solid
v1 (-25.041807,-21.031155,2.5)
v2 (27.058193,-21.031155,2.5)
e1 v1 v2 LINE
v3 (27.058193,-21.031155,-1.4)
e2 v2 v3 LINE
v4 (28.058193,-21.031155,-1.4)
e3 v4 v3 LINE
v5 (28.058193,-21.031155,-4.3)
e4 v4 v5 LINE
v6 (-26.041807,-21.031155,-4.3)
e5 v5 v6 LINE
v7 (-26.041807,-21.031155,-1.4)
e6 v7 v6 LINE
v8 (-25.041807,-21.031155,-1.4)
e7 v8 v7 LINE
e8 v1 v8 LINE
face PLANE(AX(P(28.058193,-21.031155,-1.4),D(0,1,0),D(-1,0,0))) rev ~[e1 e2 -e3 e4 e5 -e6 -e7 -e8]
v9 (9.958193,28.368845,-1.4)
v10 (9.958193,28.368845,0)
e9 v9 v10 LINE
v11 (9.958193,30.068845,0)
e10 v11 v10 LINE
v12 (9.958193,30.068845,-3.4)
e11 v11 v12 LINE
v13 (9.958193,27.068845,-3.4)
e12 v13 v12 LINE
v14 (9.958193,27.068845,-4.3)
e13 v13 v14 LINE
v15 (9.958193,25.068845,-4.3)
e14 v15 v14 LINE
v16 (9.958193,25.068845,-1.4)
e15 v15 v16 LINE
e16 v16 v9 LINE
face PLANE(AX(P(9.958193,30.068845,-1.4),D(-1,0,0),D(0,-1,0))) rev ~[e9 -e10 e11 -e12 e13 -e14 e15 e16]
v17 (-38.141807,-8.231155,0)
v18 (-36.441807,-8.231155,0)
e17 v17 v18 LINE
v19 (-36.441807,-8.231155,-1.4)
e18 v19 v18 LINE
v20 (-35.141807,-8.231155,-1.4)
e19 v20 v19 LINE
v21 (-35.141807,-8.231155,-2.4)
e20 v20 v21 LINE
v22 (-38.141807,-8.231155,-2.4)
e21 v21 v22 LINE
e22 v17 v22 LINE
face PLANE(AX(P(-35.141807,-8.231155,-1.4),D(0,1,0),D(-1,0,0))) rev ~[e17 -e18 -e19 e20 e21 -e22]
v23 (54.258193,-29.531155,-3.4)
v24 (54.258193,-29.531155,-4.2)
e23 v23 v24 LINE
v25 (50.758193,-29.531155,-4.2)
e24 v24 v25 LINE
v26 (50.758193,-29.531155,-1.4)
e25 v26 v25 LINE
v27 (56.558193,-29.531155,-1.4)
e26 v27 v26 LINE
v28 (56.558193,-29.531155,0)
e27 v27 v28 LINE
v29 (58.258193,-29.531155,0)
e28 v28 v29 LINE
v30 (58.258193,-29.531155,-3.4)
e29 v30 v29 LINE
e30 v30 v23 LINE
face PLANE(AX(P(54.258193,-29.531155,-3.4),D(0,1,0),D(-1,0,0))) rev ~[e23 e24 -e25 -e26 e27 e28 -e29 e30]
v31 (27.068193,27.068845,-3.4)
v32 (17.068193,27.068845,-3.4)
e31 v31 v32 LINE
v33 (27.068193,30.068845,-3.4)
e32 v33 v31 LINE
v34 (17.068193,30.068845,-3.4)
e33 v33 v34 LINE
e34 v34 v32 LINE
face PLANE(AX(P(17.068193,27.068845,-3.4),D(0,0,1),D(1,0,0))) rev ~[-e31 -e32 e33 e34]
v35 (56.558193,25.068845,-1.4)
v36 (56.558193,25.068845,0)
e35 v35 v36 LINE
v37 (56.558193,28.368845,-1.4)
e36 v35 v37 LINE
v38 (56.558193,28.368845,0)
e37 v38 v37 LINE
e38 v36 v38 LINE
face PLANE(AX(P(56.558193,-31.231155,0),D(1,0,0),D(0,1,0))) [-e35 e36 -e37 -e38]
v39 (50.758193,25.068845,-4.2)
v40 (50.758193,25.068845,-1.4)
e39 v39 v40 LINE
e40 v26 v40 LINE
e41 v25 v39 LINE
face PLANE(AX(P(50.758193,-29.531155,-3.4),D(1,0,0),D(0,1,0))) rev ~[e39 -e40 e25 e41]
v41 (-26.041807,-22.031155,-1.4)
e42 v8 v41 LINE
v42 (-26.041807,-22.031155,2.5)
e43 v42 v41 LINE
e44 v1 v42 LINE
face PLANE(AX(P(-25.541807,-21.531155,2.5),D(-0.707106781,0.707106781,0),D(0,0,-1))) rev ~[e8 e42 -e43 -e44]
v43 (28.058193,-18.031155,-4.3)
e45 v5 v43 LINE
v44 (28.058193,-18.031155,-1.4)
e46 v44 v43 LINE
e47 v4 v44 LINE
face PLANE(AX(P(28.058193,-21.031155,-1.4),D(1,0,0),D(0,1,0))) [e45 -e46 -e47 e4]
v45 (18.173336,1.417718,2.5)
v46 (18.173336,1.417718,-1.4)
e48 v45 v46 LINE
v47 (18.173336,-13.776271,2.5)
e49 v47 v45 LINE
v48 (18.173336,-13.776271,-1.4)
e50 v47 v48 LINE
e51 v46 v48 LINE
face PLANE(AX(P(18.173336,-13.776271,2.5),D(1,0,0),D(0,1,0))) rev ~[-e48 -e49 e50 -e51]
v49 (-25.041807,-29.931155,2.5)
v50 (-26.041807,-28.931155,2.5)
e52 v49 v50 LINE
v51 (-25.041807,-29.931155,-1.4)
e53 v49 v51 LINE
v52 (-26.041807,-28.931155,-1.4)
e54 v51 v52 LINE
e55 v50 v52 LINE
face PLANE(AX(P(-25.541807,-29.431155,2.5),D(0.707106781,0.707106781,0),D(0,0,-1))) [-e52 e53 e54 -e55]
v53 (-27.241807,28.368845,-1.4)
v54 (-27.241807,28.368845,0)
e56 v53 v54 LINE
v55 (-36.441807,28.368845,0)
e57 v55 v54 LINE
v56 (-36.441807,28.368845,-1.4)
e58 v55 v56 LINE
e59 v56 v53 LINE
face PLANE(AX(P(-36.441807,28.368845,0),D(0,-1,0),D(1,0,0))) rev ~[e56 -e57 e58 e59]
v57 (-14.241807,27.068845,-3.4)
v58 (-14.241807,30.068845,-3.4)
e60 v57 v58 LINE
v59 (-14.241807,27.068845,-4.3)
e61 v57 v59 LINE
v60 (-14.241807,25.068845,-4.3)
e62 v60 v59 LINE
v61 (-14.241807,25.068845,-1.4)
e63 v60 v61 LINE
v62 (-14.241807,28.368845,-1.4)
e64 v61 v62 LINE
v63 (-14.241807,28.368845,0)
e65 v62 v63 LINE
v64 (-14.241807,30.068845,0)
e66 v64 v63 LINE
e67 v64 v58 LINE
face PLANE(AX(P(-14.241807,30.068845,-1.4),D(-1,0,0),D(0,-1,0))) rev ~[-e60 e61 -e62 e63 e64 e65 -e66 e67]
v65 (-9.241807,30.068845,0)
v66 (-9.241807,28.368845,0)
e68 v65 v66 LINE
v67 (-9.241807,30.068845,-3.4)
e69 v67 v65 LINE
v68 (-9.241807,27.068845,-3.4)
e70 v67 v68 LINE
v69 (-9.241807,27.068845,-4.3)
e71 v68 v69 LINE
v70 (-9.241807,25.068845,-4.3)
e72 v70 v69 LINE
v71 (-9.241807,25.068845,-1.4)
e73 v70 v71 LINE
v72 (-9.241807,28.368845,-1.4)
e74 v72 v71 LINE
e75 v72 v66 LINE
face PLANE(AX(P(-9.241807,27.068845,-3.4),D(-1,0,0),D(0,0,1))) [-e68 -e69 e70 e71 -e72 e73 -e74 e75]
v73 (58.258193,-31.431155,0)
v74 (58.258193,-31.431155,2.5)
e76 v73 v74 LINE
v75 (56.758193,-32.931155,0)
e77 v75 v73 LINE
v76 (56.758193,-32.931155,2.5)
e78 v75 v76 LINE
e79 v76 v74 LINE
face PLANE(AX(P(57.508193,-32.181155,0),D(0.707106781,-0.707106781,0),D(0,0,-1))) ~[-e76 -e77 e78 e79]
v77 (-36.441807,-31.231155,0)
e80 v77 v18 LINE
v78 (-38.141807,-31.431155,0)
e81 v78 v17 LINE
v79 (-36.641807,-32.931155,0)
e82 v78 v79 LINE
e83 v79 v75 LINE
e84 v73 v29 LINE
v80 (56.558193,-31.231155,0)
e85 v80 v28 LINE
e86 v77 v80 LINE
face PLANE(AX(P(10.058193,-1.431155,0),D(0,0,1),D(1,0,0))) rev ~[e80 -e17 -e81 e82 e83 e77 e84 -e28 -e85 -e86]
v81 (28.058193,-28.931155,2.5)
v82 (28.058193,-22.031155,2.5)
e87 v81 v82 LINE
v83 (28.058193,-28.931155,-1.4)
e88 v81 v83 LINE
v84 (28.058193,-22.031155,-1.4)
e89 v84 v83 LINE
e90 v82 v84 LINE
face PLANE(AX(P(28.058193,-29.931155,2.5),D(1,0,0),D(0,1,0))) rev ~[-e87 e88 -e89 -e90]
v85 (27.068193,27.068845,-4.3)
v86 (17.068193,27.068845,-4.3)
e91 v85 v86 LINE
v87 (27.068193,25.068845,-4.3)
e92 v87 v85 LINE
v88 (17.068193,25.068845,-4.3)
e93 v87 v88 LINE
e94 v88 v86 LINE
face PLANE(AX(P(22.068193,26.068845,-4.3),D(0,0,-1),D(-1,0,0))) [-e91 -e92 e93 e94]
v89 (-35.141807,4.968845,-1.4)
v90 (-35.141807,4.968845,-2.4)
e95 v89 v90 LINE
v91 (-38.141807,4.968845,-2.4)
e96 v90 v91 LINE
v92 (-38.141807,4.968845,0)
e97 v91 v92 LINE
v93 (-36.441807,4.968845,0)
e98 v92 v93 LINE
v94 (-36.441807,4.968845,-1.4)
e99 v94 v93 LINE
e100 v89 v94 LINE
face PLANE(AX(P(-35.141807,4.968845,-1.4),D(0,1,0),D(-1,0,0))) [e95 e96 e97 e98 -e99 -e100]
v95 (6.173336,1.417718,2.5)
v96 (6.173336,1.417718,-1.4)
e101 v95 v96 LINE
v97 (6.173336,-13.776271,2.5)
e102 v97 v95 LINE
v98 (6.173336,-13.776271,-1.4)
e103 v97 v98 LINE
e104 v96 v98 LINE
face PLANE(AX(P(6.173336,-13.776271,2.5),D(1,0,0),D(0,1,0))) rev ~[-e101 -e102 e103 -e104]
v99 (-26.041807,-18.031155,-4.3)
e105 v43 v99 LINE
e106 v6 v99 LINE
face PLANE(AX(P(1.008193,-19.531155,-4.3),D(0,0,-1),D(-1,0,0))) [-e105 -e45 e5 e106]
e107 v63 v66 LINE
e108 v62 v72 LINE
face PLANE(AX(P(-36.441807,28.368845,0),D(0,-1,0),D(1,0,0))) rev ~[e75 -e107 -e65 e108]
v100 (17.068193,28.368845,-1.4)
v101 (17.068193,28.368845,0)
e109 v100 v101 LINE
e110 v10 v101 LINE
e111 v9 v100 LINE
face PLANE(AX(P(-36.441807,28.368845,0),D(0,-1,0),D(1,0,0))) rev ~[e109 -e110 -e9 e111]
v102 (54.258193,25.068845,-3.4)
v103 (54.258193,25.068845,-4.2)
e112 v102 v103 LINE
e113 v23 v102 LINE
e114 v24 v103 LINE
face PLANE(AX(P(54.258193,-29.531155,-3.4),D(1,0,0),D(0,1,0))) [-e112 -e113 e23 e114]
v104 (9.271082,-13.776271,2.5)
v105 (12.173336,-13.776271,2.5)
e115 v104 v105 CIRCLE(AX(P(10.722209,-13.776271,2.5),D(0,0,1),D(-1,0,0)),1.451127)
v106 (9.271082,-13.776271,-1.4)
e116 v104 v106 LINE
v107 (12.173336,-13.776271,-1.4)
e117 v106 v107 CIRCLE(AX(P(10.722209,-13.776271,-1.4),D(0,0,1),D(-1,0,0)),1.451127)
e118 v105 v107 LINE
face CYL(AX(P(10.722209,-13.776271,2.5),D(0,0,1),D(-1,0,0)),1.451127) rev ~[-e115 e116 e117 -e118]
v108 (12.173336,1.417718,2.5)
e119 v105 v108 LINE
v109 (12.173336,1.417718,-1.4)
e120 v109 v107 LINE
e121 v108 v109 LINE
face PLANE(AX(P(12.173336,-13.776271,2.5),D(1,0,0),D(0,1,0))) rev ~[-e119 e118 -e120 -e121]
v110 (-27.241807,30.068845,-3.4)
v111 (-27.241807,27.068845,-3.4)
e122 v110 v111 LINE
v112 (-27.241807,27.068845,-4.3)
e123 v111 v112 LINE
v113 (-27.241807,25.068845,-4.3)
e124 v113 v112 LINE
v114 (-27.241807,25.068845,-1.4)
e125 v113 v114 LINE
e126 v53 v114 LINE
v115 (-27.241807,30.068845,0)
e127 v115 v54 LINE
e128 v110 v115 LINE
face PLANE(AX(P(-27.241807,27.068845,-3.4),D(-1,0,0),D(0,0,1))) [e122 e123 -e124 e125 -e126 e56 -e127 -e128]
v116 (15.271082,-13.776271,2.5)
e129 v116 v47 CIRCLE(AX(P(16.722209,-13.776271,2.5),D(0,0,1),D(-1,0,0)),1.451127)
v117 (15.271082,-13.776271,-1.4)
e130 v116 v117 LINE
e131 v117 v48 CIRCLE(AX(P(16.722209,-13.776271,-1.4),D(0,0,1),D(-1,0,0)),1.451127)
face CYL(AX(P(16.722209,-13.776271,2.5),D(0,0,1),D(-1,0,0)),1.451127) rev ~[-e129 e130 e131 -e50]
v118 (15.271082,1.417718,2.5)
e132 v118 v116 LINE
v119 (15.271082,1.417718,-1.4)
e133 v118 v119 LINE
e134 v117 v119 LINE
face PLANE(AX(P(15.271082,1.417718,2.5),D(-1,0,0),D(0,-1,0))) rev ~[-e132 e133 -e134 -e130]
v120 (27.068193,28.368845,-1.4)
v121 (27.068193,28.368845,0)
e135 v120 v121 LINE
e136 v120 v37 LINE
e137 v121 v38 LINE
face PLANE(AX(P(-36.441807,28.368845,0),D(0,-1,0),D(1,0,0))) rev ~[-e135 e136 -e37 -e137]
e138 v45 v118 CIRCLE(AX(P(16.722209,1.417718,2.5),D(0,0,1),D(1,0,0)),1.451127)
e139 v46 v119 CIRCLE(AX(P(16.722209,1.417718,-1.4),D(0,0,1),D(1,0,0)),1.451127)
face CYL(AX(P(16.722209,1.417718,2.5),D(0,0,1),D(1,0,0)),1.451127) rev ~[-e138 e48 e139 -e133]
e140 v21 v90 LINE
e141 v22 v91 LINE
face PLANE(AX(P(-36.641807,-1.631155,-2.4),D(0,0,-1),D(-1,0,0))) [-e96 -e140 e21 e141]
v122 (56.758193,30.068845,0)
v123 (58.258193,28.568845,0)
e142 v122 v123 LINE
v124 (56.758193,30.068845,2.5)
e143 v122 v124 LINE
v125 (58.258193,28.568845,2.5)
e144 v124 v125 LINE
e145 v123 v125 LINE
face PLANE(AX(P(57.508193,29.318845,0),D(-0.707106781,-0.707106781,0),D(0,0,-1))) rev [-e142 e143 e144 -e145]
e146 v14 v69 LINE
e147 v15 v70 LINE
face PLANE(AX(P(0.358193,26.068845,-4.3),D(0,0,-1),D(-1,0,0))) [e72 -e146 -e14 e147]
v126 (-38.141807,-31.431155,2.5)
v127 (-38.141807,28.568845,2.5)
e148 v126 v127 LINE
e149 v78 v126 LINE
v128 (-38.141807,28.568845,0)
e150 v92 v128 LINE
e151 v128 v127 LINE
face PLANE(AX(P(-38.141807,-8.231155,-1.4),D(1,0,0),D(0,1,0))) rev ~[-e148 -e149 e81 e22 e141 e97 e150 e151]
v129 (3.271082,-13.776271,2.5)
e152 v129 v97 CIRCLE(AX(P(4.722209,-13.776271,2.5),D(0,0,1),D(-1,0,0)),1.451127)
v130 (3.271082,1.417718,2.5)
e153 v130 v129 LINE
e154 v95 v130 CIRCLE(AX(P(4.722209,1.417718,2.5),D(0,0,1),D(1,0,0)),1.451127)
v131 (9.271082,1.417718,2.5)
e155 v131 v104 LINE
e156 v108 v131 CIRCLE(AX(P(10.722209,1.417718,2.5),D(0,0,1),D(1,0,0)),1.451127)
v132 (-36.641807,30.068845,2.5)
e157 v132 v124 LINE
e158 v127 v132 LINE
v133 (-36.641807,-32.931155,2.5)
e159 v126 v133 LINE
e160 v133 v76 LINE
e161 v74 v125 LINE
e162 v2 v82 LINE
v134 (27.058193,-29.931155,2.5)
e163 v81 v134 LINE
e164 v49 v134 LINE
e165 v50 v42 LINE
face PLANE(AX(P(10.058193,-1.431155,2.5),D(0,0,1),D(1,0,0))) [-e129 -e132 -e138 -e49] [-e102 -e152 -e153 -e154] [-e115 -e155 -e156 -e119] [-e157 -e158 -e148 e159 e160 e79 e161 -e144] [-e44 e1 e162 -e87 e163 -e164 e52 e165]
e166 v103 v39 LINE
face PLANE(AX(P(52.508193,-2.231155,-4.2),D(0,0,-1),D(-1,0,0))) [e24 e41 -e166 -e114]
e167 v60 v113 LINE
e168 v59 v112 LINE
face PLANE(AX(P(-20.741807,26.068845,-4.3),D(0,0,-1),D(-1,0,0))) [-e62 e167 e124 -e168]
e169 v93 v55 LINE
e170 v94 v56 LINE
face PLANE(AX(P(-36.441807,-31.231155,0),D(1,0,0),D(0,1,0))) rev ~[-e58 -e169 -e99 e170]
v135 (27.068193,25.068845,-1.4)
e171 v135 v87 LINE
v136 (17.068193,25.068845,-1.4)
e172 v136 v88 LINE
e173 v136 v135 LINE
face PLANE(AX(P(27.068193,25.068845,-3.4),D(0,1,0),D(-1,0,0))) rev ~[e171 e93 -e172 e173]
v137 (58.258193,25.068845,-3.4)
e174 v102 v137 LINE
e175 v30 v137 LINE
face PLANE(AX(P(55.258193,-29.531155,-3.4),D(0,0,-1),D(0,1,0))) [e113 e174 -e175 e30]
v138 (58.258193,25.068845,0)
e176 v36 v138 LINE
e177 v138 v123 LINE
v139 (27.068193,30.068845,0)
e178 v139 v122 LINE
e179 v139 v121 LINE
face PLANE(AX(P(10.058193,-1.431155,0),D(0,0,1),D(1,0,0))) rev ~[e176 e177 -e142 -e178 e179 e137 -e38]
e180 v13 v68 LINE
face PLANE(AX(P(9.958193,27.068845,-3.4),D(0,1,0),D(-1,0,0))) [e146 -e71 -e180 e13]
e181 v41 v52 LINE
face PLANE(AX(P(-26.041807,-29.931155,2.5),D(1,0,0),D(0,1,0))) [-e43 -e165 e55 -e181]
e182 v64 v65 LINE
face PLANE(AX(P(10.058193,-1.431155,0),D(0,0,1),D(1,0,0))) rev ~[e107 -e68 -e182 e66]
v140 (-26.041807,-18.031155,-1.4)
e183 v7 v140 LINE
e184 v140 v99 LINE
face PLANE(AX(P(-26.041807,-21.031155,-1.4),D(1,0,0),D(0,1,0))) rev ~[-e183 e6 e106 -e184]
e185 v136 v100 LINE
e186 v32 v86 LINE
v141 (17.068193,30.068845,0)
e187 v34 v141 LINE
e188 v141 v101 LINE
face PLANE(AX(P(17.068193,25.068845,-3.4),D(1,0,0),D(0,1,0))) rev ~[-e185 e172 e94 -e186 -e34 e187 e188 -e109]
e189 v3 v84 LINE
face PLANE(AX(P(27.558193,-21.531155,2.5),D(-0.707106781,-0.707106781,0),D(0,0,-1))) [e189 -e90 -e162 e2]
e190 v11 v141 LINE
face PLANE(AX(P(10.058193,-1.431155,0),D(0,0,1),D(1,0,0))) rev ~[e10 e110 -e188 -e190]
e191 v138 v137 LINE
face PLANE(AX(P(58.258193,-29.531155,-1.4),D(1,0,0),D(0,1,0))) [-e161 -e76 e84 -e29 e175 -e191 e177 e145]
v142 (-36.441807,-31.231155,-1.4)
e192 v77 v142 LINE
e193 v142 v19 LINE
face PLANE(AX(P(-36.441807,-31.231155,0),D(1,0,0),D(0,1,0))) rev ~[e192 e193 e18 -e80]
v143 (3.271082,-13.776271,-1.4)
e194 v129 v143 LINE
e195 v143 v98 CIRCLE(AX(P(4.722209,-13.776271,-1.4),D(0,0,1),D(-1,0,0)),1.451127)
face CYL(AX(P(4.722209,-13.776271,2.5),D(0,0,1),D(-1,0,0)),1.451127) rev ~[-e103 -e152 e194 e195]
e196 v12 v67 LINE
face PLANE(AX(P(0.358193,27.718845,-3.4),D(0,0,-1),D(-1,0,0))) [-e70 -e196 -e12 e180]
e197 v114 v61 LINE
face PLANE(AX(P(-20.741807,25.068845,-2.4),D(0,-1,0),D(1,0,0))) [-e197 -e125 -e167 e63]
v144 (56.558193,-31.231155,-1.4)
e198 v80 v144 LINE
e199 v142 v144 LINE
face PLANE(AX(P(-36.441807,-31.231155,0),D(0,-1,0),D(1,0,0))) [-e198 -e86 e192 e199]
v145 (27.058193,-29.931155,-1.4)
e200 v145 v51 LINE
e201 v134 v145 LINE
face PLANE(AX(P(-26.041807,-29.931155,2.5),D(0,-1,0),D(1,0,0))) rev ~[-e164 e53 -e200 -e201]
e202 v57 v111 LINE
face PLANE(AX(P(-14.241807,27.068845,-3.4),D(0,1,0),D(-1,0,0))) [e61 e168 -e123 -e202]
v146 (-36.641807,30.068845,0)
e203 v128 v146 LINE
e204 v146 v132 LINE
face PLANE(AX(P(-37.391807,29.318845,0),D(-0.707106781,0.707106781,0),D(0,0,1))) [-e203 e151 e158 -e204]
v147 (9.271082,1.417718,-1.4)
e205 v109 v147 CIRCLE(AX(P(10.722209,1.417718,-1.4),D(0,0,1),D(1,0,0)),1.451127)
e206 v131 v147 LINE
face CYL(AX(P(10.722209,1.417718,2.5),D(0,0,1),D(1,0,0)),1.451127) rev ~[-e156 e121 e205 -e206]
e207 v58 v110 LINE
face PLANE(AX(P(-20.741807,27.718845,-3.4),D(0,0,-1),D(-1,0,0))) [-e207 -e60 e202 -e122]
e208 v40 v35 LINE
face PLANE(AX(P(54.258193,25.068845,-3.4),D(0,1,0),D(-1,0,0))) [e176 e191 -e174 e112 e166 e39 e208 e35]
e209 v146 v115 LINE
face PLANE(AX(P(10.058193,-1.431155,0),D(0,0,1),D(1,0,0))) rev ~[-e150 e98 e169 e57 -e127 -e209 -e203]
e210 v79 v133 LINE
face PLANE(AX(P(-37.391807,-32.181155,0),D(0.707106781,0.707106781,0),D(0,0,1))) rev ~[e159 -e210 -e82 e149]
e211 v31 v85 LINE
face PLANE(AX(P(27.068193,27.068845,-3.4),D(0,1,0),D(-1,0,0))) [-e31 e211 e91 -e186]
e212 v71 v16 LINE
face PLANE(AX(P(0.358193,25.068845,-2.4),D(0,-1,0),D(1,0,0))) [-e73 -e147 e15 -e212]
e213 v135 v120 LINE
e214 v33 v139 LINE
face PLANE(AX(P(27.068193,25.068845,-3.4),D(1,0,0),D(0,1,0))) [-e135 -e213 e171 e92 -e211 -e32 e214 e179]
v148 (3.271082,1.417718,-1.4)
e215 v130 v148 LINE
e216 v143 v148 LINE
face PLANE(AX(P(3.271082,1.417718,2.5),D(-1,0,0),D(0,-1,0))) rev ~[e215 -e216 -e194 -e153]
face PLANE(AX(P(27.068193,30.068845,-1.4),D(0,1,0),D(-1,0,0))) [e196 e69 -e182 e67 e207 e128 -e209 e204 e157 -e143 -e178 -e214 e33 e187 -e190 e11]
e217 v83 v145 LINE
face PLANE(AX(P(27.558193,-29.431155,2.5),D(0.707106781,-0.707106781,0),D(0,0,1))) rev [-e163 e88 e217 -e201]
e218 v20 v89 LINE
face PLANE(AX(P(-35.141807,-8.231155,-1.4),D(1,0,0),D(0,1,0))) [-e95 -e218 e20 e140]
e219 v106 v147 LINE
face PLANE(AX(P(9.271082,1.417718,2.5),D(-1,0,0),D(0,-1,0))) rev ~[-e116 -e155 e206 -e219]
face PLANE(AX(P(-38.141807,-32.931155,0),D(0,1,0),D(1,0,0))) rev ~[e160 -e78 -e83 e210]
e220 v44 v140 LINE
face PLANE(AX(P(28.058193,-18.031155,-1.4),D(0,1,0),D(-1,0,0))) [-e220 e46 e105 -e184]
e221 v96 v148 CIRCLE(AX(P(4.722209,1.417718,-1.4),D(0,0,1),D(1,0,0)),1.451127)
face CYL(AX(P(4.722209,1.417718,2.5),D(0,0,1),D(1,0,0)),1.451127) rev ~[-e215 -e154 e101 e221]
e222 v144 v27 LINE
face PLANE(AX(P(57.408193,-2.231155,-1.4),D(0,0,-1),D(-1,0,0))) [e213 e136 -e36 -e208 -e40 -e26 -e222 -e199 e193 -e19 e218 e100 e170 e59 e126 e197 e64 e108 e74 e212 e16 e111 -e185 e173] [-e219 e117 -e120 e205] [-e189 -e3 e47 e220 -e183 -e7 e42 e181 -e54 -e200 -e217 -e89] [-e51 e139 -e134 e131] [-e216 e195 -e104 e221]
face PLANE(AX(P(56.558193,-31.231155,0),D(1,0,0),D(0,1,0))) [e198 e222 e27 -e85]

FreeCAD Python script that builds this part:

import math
import FreeCAD as App
import Part
import Sketcher
from FreeCAD import Vector


def edges_at(feature, points):
    """Names of the edges that pass closest to the given points."""
    edges = feature.Shape.Edges
    near = lambda p: min(range(len(edges)), key=lambda i: edges[i].distToShape(Part.Vertex(*p))[0])
    return sorted({f"Edge{near(p) + 1}" for p in points})


def add_polygon(sketch, points):
    """Adds a closed chain of lines whose ends are joined by coincident constraints."""
    first, n = sketch.GeometryCount, len(points)
    for a, b in zip(points, points[1:] + points[:1]):
        sketch.addGeometry(Part.LineSegment(App.Vector(*a, 0), App.Vector(*b, 0)), False)
    for i in range(n):
        sketch.addConstraint(Sketcher.Constraint("Coincident", first + i, 2, first + (i + 1) % n, 1))

doc = App.newDocument("Part")
body = doc.addObject("PartDesign::Body", "Body")

# Sketch on XY plane
sketch1 = doc.addObject("Sketcher::SketchObject", "Sketch")
body.addObject(sketch1)
sketch1.AttachmentSupport = (doc.XY_Plane, [""])
sketch1.MapMode = "FlatFace"
add_polygon(sketch1, [(-38.141807, 30.068845), (-38.141807, -32.931155), (58.258193, -32.931155), (58.258193, 30.068845)])  # lines 0-3
sketch1.addConstraint([
    Sketcher.Constraint("Vertical", 0),
    Sketcher.Constraint("Horizontal", 1),
    Sketcher.Constraint("Vertical", 2),
    Sketcher.Constraint("Horizontal", 3),
    Sketcher.Constraint("DistanceY", 0, 2, 0, 1, 63.0),
    Sketcher.Constraint("DistanceX", 1, 1, 1, 2, 96.4),
    Sketcher.Constraint("DistanceX", 0, 2, -1, 1, 38.141807),
    Sketcher.Constraint("DistanceY", 0, 2, -1, 1, 32.931155),
])
pad1 = doc.addObject("PartDesign::Pad", "Pad")
body.addObject(pad1)
pad1.Profile = sketch1
pad1.Length = 2.5

# Sketch on XY plane
sketch2 = doc.addObject("Sketcher::SketchObject", "Sketch001")
body.addObject(sketch2)
sketch2.AttachmentSupport = (doc.XY_Plane, [""])
sketch2.MapMode = "FlatFace"
add_polygon(sketch2, [(-36.441807, 28.368845), (-36.441807, -31.231155), (56.558193, -31.231155), (56.558193, 28.368845)])  # lines 0-3
sketch2.addConstraint([
    Sketcher.Constraint("Vertical", 0),
    Sketcher.Constraint("Horizontal", 1),
    Sketcher.Constraint("Vertical", 2),
    Sketcher.Constraint("Horizontal", 3),
    Sketcher.Constraint("DistanceX", 1, 1, 1, 2, 93.0),
    Sketcher.Constraint("DistanceY", 0, 2, 0, 1, 59.6),
    Sketcher.Constraint("DistanceX", 0, 2, -1, 1, 36.441807),
    Sketcher.Constraint("DistanceY", 0, 2, -1, 1, 31.231155),
])
pad2 = doc.addObject("PartDesign::Pad", "Pad001")
body.addObject(pad2)
pad2.Profile = sketch2
pad2.Length = 1.4
pad2.Reversed = True
doc.recompute()

chamfer = doc.addObject("PartDesign::Chamfer", "Chamfer")
body.addObject(chamfer)
chamfer.Base = (pad2, edges_at(pad2, [
    (-38.142, 30.069, 1.25),
    (58.258, 30.069, 1.25),
    (58.258, -32.931, 1.25),
    (-38.142, -32.931, 1.25),
]))
chamfer.Size = 1.5

# Sketch on XY plane
sketch3 = doc.addObject("Sketcher::SketchObject", "Sketch002")
body.addObject(sketch3)
sketch3.AttachmentSupport = (doc.XY_Plane, [""])
sketch3.MapMode = "FlatFace"
sketch3.AttachmentOffset = App.Placement(Vector(0, 0, -1.4), App.Rotation())
add_polygon(sketch3, [(-36.441807, 4.968845), (-36.441807, -8.231155), (-38.141807, -8.231155), (-38.141807, 4.968845)])  # lines 0-3
sketch3.addConstraint([
    Sketcher.Constraint("Vertical", 0),
    Sketcher.Constraint("Horizontal", 1),
    Sketcher.Constraint("Vertical", 2),
    Sketcher.Constraint("Horizontal", 3),
    Sketcher.Constraint("DistanceX", 1, 2, 1, 1, 1.7),
    Sketcher.Constraint("DistanceY", 0, 2, 0, 1, 13.2),
    Sketcher.Constraint("DistanceX", 0, 2, -1, 1, 36.441807),
    Sketcher.Constraint("DistanceY", 0, 2, -1, 1, 8.231155),
])
pad3 = doc.addObject("PartDesign::Pad", "Pad002")
body.addObject(pad3)
pad3.Profile = sketch3
pad3.Length = 1.7

# Sketch on XY plane
sketch4 = doc.addObject("Sketcher::SketchObject", "Sketch003")
body.addObject(sketch4)
sketch4.AttachmentSupport = (doc.XY_Plane, [""])
sketch4.MapMode = "FlatFace"
sketch4.AttachmentOffset = App.Placement(Vector(0, 0, -1.4), App.Rotation())
add_polygon(sketch4, [(27.068193, 30.068845), (27.068193, 28.368845), (17.068193, 28.368845), (17.068193, 30.068845)])  # lines 0-3
add_polygon(sketch4, [(9.958193, 30.068845), (9.958193, 28.368845), (-9.241807, 28.368845), (-9.241807, 30.068845)])  # lines 4-7
add_polygon(sketch4, [(-14.241807, 30.068845), (-14.241807, 28.368845), (-27.241807, 28.368845), (-27.241807, 30.068845)])  # lines 8-11
sketch4.addConstraint([
    Sketcher.Constraint("Vertical", 0),
    Sketcher.Constraint("Horizontal", 1),
    Sketcher.Constraint("Vertical", 2),
    Sketcher.Constraint("Horizontal", 3),
    Sketcher.Constraint("Vertical", 4),
    Sketcher.Constraint("Horizontal", 5),
    Sketcher.Constraint("Vertical", 6),
    Sketcher.Constraint("Horizontal", 7),
    Sketcher.Constraint("Vertical", 8),
    Sketcher.Constraint("Horizontal", 9),
    Sketcher.Constraint("Vertical", 10),
    Sketcher.Constraint("Horizontal", 11),
    Sketcher.Constraint("Horizontal", 1, 2, 4, 2),
    Sketcher.Constraint("Horizontal", 3, 2, 6, 2),
    Sketcher.Constraint("Horizontal", 5, 2, 8, 2),
    Sketcher.Constraint("Horizontal", 7, 2, 10, 2),
    Sketcher.Constraint("DistanceX", 1, 2, 1, 1, 10.0),
    Sketcher.Constraint("DistanceX", 9, 2, 9, 1, 13.0),
    Sketcher.Constraint("DistanceX", 5, 2, 5, 1, 19.2),
    Sketcher.Constraint("DistanceY", 0, 2, 0, 1, 1.7),
    Sketcher.Constraint("DistanceX", 8, 2, 5, 2, 5.0),
    Sketcher.Constraint("DistanceX", 4, 2, 1, 2, 7.11),
    Sketcher.Constraint("DistanceX", -1, 1, 0, 2, 27.068193),
    Sketcher.Constraint("DistanceY", -1, 1, 0, 2, 28.368845),
])
pad4 = doc.addObject("PartDesign::Pad", "Pad003")
body.addObject(pad4)
pad4.Profile = sketch4
pad4.Length = 1.6

# Sketch on XY plane
sketch5 = doc.addObject("Sketcher::SketchObject", "Sketch004")
body.addObject(sketch5)
sketch5.AttachmentSupport = (doc.XY_Plane, [""])
sketch5.MapMode = "FlatFace"
sketch5.AttachmentOffset = App.Placement(Vector(0, 0, -1.4), App.Rotation())
add_polygon(sketch5, [(27.068193, 30.068845), (27.068193, 27.068845), (17.068193, 27.068845), (17.068193, 30.068845)])  # lines 0-3
add_polygon(sketch5, [(9.958193, 27.068845), (-9.241807, 27.068845), (-9.241807, 30.068845), (9.958193, 30.068845)])  # lines 4-7
add_polygon(sketch5, [(-14.241807, 27.068845), (-27.241807, 27.068845), (-27.241807, 30.068845), (-14.241807, 30.068845)])  # lines 8-11
sketch5.addConstraint([
    Sketcher.Constraint("Vertical", 0),
    Sketcher.Constraint("Horizontal", 1),
    Sketcher.Constraint("Vertical", 2),
    Sketcher.Constraint("Horizontal", 3),
    Sketcher.Constraint("Horizontal", 4),
    Sketcher.Constraint("Vertical", 5),
    Sketcher.Constraint("Horizontal", 6),
    Sketcher.Constraint("Vertical", 7),
    Sketcher.Constraint("Horizontal", 8),
    Sketcher.Constraint("Vertical", 9),
    Sketcher.Constraint("Horizontal", 10),
    Sketcher.Constraint("Vertical", 11),
    Sketcher.Constraint("Horizontal", 1, 2, 4, 2),
    Sketcher.Constraint("Horizontal", 3, 2, 5, 2),
    Sketcher.Constraint("Horizontal", 7, 2, 8, 2),
    Sketcher.Constraint("Horizontal", 6, 2, 9, 2),
    Sketcher.Constraint("DistanceX", 1, 2, 1, 1, 10.0),
    Sketcher.Constraint("DistanceX", 8, 2, 8, 1, 13.0),
    Sketcher.Constraint("DistanceY", 0, 2, 0, 1, 3.0),
    Sketcher.Constraint("DistanceX", 4, 2, 4, 1, 19.2),
    Sketcher.Constraint("DistanceX", 8, 2, 4, 2, 18.0),
    Sketcher.Constraint("DistanceX", 4, 2, 1, 2, 26.31),
    Sketcher.Constraint("DistanceX", -1, 1, 0, 2, 27.068193),
    Sketcher.Constraint("DistanceY", -1, 1, 0, 2, 27.068845),
])
pad5 = doc.addObject("PartDesign::Pad", "Pad004")
body.addObject(pad5)
pad5.Profile = sketch5
pad5.Length = 2
pad5.Reversed = True

# Sketch on XY plane
sketch6 = doc.addObject("Sketcher::SketchObject", "Sketch005")
body.addObject(sketch6)
sketch6.AttachmentSupport = (doc.XY_Plane, [""])
sketch6.MapMode = "FlatFace"
sketch6.AttachmentOffset = App.Placement(Vector(0, 0, -1.4), App.Rotation())
add_polygon(sketch6, [(-35.141807, 4.968845), (-35.141807, -8.231155), (-38.141807, -8.231155), (-38.141807, 4.968845)])  # lines 0-3
sketch6.addConstraint([
    Sketcher.Constraint("Vertical", 0),
    Sketcher.Constraint("Horizontal", 1),
    Sketcher.Constraint("Vertical", 2),
    Sketcher.Constraint("Horizontal", 3),
    Sketcher.Constraint("DistanceX", 1, 2, 1, 1, 3.0),
    Sketcher.Constraint("DistanceY", 0, 2, 0, 1, 13.2),
    Sketcher.Constraint("DistanceX", 0, 2, -1, 1, 35.141807),
    Sketcher.Constraint("DistanceY", 0, 2, -1, 1, 8.231155),
])
pad6 = doc.addObject("PartDesign::Pad", "Pad005")
body.addObject(pad6)
pad6.Profile = sketch6
pad6.Length = 1
pad6.Reversed = True

# Sketch on XY plane
sketch7 = doc.addObject("Sketcher::SketchObject", "Sketch006")
body.addObject(sketch7)
sketch7.AttachmentSupport = (doc.XY_Plane, [""])
sketch7.MapMode = "FlatFace"
sketch7.AttachmentOffset = App.Placement(Vector(0, 0, -1.4), App.Rotation())
add_polygon(sketch7, [(58.258193, 25.068845), (58.258193, -29.531155), (56.558193, -29.531155), (56.558193, 25.068845)])  # lines 0-3
sketch7.addConstraint([
    Sketcher.Constraint("Vertical", 0),
    Sketcher.Constraint("Horizontal", 1),
    Sketcher.Constraint("Vertical", 2),
    Sketcher.Constraint("Horizontal", 3),
    Sketcher.Constraint("DistanceX", 1, 2, 1, 1, 1.7),
    Sketcher.Constraint("DistanceY", 0, 2, 0, 1, 54.6),
    Sketcher.Constraint("DistanceX", -1, 1, 0, 2, 58.258193),
    Sketcher.Constraint("DistanceY", 0, 2, -1, 1, 29.531155),
])
pad7 = doc.addObject("PartDesign::Pad", "Pad006")
body.addObject(pad7)
pad7.Profile = sketch7
pad7.Length = 1.6

# Sketch on XY plane
sketch8 = doc.addObject("Sketcher::SketchObject", "Sketch007")
body.addObject(sketch8)
sketch8.AttachmentSupport = (doc.XY_Plane, [""])
sketch8.MapMode = "FlatFace"
sketch8.AttachmentOffset = App.Placement(Vector(0, 0, -1.4), App.Rotation())
add_polygon(sketch8, [(55.258193, -29.531155), (55.258193, 25.068845), (58.258193, 25.068845), (58.258193, -29.531155)])  # lines 0-3
sketch8.addConstraint([
    Sketcher.Constraint("Vertical", 0),
    Sketcher.Constraint("Horizontal", 1),
    Sketcher.Constraint("Vertical", 2),
    Sketcher.Constraint("Horizontal", 3),
    Sketcher.Constraint("DistanceX", 1, 1, 1, 2, 3.0),
    Sketcher.Constraint("DistanceY", 0, 1, 0, 2, 54.6),
    Sketcher.Constraint("DistanceX", -1, 1, 0, 2, 55.258193),
    Sketcher.Constraint("DistanceY", -1, 1, 0, 2, 25.068845),
])
pad8 = doc.addObject("PartDesign::Pad", "Pad007")
body.addObject(pad8)
pad8.Profile = sketch8
pad8.Length = 2
pad8.Reversed = True

# Sketch on XY plane
sketch9 = doc.addObject("Sketcher::SketchObject", "Sketch008")
body.addObject(sketch9)
sketch9.AttachmentSupport = (doc.XY_Plane, [""])
sketch9.MapMode = "FlatFace"
sketch9.AttachmentOffset = App.Placement(Vector(0, 0, 2.5), App.Rotation())
add_polygon(sketch9, [(-26.041807, -21.031155), (-26.041807, -29.931155), (28.058193, -29.931155), (28.058193, -21.031155)])  # lines 0-3
sketch9.addConstraint([
    Sketcher.Constraint("Vertical", 0),
    Sketcher.Constraint("Horizontal", 1),
    Sketcher.Constraint("Vertical", 2),
    Sketcher.Constraint("Horizontal", 3),
    Sketcher.Constraint("DistanceX", 1, 1, 1, 2, 54.1),
    Sketcher.Constraint("DistanceY", 0, 2, 0, 1, 8.9),
    Sketcher.Constraint("DistanceX", 0, 2, -1, 1, 26.041807),
    Sketcher.Constraint("DistanceY", 0, 2, -1, 1, 29.931155),
])
pocket1 = doc.addObject("PartDesign::Pocket", "Pocket")
body.addObject(pocket1)
pocket1.Profile = sketch9
pocket1.Length = 12
doc.recompute()

chamfer2 = doc.addObject("PartDesign::Chamfer", "Chamfer001")
body.addObject(chamfer2)
chamfer2.Base = (pocket1, edges_at(pocket1, [
    (28.058, -29.931, 0.55),
    (-26.042, -29.931, 0.55),
    (-26.042, -21.031, 0.55),
    (28.058, -21.031, 0.55),
]))
chamfer2.Size = 1

# Sketch on XZ plane
sketch10 = doc.addObject("Sketcher::SketchObject", "Sketch009")
body.addObject(sketch10)
sketch10.AttachmentSupport = (doc.XZ_Plane, [""])
sketch10.MapMode = "FlatFace"
sketch10.AttachmentOffset = App.Placement(Vector(0, 0, -27.068845), App.Rotation())
add_polygon(sketch10, [(17.068193, -1.4), (17.068193, -3.4), (27.068193, -3.4), (27.068193, -1.4)])  # lines 0-3
add_polygon(sketch10, [(-9.241807, -1.4), (-9.241807, -3.4), (9.958193, -3.4), (9.958193, -1.4)])  # lines 4-7
add_polygon(sketch10, [(-27.241807, -1.4), (-27.241807, -3.4), (-14.241807, -3.4), (-14.241807, -1.4)])  # lines 8-11
sketch10.addConstraint([
    Sketcher.Constraint("Vertical", 0),
    Sketcher.Constraint("Horizontal", 1),
    Sketcher.Constraint("Vertical", 2),
    Sketcher.Constraint("Horizontal", 3),
    Sketcher.Constraint("Vertical", 4),
    Sketcher.Constraint("Horizontal", 5),
    Sketcher.Constraint("Vertical", 6),
    Sketcher.Constraint("Horizontal", 7),
    Sketcher.Constraint("Vertical", 8),
    Sketcher.Constraint("Horizontal", 9),
    Sketcher.Constraint("Vertical", 10),
    Sketcher.Constraint("Horizontal", 11),
    Sketcher.Constraint("Horizontal", 1, 2, 4, 2),
    Sketcher.Constraint("Horizontal", 3, 2, 6, 2),
    Sketcher.Constraint("Horizontal", 5, 2, 8, 2),
    Sketcher.Constraint("Horizontal", 7, 2, 10, 2),
    Sketcher.Constraint("DistanceX", 1, 1, 1, 2, 10.0),
    Sketcher.Constraint("DistanceX", 9, 1, 9, 2, 13.0),
    Sketcher.Constraint("DistanceY", 0, 2, 0, 1, 2.0),
    Sketcher.Constraint("DistanceX", 5, 1, 5, 2, 19.2),
    Sketcher.Constraint("DistanceX", 8, 2, 4, 2, 18.0),
    Sketcher.Constraint("DistanceY", 0, 2, -1, 1, 3.4),
    Sketcher.Constraint("DistanceX", 4, 2, 0, 2, 26.31),
    Sketcher.Constraint("DistanceX", -1, 1, 0, 2, 17.068193),
])
pad9 = doc.addObject("PartDesign::Pad", "Pad008")
body.addObject(pad9)
pad9.Profile = sketch10
pad9.Length = 2

# Sketch on XY plane
sketch11 = doc.addObject("Sketcher::SketchObject", "Sketch010")
body.addObject(sketch11)
sketch11.AttachmentSupport = (doc.XY_Plane, [""])
sketch11.MapMode = "FlatFace"
sketch11.AttachmentOffset = App.Placement(Vector(0, 0, -3.4), App.Rotation())
add_polygon(sketch11, [(27.068193, 27.068845), (27.068193, 25.068845), (17.068193, 25.068845), (17.068193, 27.068845)])  # lines 0-3
add_polygon(sketch11, [(9.958193, 27.068845), (9.958193, 25.068845), (-9.241807, 25.068845), (-9.241807, 27.068845)])  # lines 4-7
add_polygon(sketch11, [(-14.241807, 27.068845), (-14.241807, 25.068845), (-27.241807, 25.068845), (-27.241807, 27.068845)])  # lines 8-11
sketch11.addConstraint([
    Sketcher.Constraint("Vertical", 0),
    Sketcher.Constraint("Horizontal", 1),
    Sketcher.Constraint("Vertical", 2),
    Sketcher.Constraint("Horizontal", 3),
    Sketcher.Constraint("Vertical", 4),
    Sketcher.Constraint("Horizontal", 5),
    Sketcher.Constraint("Vertical", 6),
    Sketcher.Constraint("Horizontal", 7),
    Sketcher.Constraint("Vertical", 8),
    Sketcher.Constraint("Horizontal", 9),
    Sketcher.Constraint("Vertical", 10),
    Sketcher.Constraint("Horizontal", 11),
    Sketcher.Constraint("Horizontal", 1, 2, 4, 2),
    Sketcher.Constraint("Horizontal", 3, 2, 6, 2),
    Sketcher.Constraint("Horizontal", 5, 2, 8, 2),
    Sketcher.Constraint("Horizontal", 7, 2, 10, 2),
    Sketcher.Constraint("DistanceX", 1, 2, 1, 1, 10.0),
    Sketcher.Constraint("DistanceX", 9, 2, 9, 1, 13.0),
    Sketcher.Constraint("DistanceY", 0, 2, 0, 1, 2.0),
    Sketcher.Constraint("DistanceX", 5, 2, 5, 1, 19.2),
    Sketcher.Constraint("DistanceX", 8, 2, 5, 2, 5.0),
    Sketcher.Constraint("DistanceX", 4, 2, 1, 2, 7.11),
    Sketcher.Constraint("DistanceX", -1, 1, 0, 2, 27.068193),
    Sketcher.Constraint("DistanceY", -1, 1, 0, 2, 25.068845),
])
pad10 = doc.addObject("PartDesign::Pad", "Pad009")
body.addObject(pad10)
pad10.Profile = sketch11
pad10.Length = 0.9
pad10.Reversed = True

# Sketch on XY plane
sketch12 = doc.addObject("Sketcher::SketchObject", "Sketch011")
body.addObject(sketch12)
sketch12.AttachmentSupport = (doc.XY_Plane, [""])
sketch12.MapMode = "FlatFace"
sketch12.AttachmentOffset = App.Placement(Vector(0, 0, -1.4), App.Rotation())
add_polygon(sketch12, [(28.058193, -18.031155), (28.058193, -21.031155), (-26.041807, -21.031155), (-26.041807, -18.031155)])  # lines 0-3
sketch12.addConstraint([
    Sketcher.Constraint("Vertical", 0),
    Sketcher.Constraint("Horizontal", 1),
    Sketcher.Constraint("Vertical", 2),
    Sketcher.Constraint("Horizontal", 3),
    Sketcher.Constraint("DistanceY", 0, 2, 0, 1, 3.0),
    Sketcher.Constraint("DistanceX", 1, 2, 1, 1, 54.1),
    Sketcher.Constraint("DistanceX", -1, 1, 0, 2, 28.058193),
    Sketcher.Constraint("DistanceY", 0, 2, -1, 1, 21.031155),
])
pad11 = doc.addObject("PartDesign::Pad", "Pad010")
body.addObject(pad11)
pad11.Profile = sketch12
pad11.Length = 2.9
pad11.Reversed = True

# Sketch on YZ plane
sketch13 = doc.addObject("Sketcher::SketchObject", "Sketch012")
body.addObject(sketch13)
sketch13.AttachmentSupport = (doc.YZ_Plane, [""])
sketch13.MapMode = "FlatFace"
sketch13.AttachmentOffset = App.Placement(Vector(0, 0, 55.258193), App.Rotation())
add_polygon(sketch13, [(25.068845, -3.4), (-29.531155, -3.4), (-29.531155, -1.4), (25.068845, -1.4)])  # lines 0-3
sketch13.addConstraint([
    Sketcher.Constraint("Horizontal", 0),
    Sketcher.Constraint("Vertical", 1),
    Sketcher.Constraint("Horizontal", 2),
    Sketcher.Constraint("Vertical", 3),
    Sketcher.Constraint("DistanceY", 1, 1, 1, 2, 2.0),
    Sketcher.Constraint("DistanceX", 0, 2, 0, 1, 54.6),
    Sketcher.Constraint("DistanceY", 0, 2, -1, 1, 3.4),
    Sketcher.Constraint("DistanceX", 0, 2, -1, 1, 29.531155),
])
pad12 = doc.addObject("PartDesign::Pad", "Pad011")
body.addObject(pad12)
pad12.Profile = sketch13
pad12.Length = 4.5
pad12.Reversed = True

# Sketch on XY plane
sketch14 = doc.addObject("Sketcher::SketchObject", "Sketch013")
body.addObject(sketch14)
sketch14.AttachmentSupport = (doc.XY_Plane, [""])
sketch14.MapMode = "FlatFace"
sketch14.AttachmentOffset = App.Placement(Vector(0, 0, -3.4), App.Rotation())
add_polygon(sketch14, [(54.258193, 25.068845), (54.258193, -29.531155), (50.758193, -29.531155), (50.758193, 25.068845)])  # lines 0-3
sketch14.addConstraint([
    Sketcher.Constraint("Vertical", 0),
    Sketcher.Constraint("Horizontal", 1),
    Sketcher.Constraint("Vertical", 2),
    Sketcher.Constraint("Horizontal", 3),
    Sketcher.Constraint("DistanceX", 1, 2, 1, 1, 3.5),
    Sketcher.Constraint("DistanceY", 0, 2, 0, 1, 54.6),
    Sketcher.Constraint("DistanceX", -1, 1, 0, 2, 54.258193),
    Sketcher.Constraint("DistanceY", 0, 2, -1, 1, 29.531155),
])
pad13 = doc.addObject("PartDesign::Pad", "Pad012")
body.addObject(pad13)
pad13.Profile = sketch14
pad13.Length = 0.8
pad13.Reversed = True

# Sketch on XY plane
sketch15 = doc.addObject("Sketcher::SketchObject", "Sketch014")
body.addObject(sketch15)
sketch15.AttachmentSupport = (doc.XY_Plane, [""])
sketch15.MapMode = "FlatFace"
sketch15.AttachmentOffset = App.Placement(Vector(0, 0, 2.5), App.Rotation())
sketch15.addGeometry([
    Part.LineSegment(Vector(3.271082, 1.417718, 0), Vector(3.271082, -13.776271, 0)),  # 0
    Part.ArcOfCircle(Part.Circle(Vector(4.722209, -13.776271, 0), Vector(0, 0, 1), 1.451127), math.radians(-180), math.radians(0)),  # 1
    Part.LineSegment(Vector(6.173336, -13.776271, 0), Vector(6.173336, 1.417718, 0)),  # 2
    Part.ArcOfCircle(Part.Circle(Vector(4.722209, 1.417718, 0), Vector(0, 0, 1), 1.451127), math.radians(0), math.radians(180)),  # 3
    Part.LineSegment(Vector(15.271082, 1.417718, 0), Vector(15.271082, -13.776271, 0)),  # 4
    Part.ArcOfCircle(Part.Circle(Vector(16.722209, -13.776271, 0), Vector(0, 0, 1), 1.451127), math.radians(-180), math.radians(0)),  # 5
    Part.LineSegment(Vector(18.173336, -13.776271, 0), Vector(18.173336, 1.417718, 0)),  # 6
    Part.ArcOfCircle(Part.Circle(Vector(16.722209, 1.417718, 0), Vector(0, 0, 1), 1.451127), math.radians(0), math.radians(180)),  # 7
    Part.LineSegment(Vector(9.271082, 1.417718, 0), Vector(9.271082, -13.776271, 0)),  # 8
    Part.ArcOfCircle(Part.Circle(Vector(10.722209, -13.776271, 0), Vector(0, 0, 1), 1.451127), math.radians(-180), math.radians(0)),  # 9
    Part.LineSegment(Vector(12.173336, -13.776271, 0), Vector(12.173336, 1.417718, 0)),  # 10
    Part.ArcOfCircle(Part.Circle(Vector(10.722209, 1.417718, 0), Vector(0, 0, 1), 1.451127), math.radians(0), math.radians(180)),  # 11
], False)
sketch15.addConstraint([
    Sketcher.Constraint("Tangent", 0, 2, 1, 1),
    Sketcher.Constraint("Tangent", 1, 2, 2, 1),
    Sketcher.Constraint("Tangent", 2, 2, 3, 1),
    Sketcher.Constraint("Tangent", 3, 2, 0, 1),
    Sketcher.Constraint("Tangent", 4, 2, 5, 1),
    Sketcher.Constraint("Tangent", 5, 2, 6, 1),
    Sketcher.Constraint("Tangent", 6, 2, 7, 1),
    Sketcher.Constraint("Tangent", 7, 2, 4, 1),
    Sketcher.Constraint("Tangent", 8, 2, 9, 1),
    Sketcher.Constraint("Tangent", 9, 2, 10, 1),
    Sketcher.Constraint("Tangent", 10, 2, 11, 1),
    Sketcher.Constraint("Tangent", 11, 2, 8, 1),
    Sketcher.Constraint("Vertical", 0),
    Sketcher.Constraint("Vertical", 2),
    Sketcher.Constraint("Vertical", 4),
    Sketcher.Constraint("Vertical", 6),
    Sketcher.Constraint("Vertical", 8),
    Sketcher.Constraint("Vertical", 10),
    Sketcher.Constraint("Equal", 3, 5),
    Sketcher.Constraint("Equal", 7, 9),
    Sketcher.Constraint("Horizontal", 1, 3, 5, 3),
    Sketcher.Constraint("Horizontal", 3, 3, 7, 3),
    Sketcher.Constraint("Horizontal", 5, 3, 9, 3),
    Sketcher.Constraint("Horizontal", 7, 3, 11, 3),
    Sketcher.Constraint("DistanceX", 1, 3, 5, 3, 12.0),
    Sketcher.Constraint("DistanceX", 9, 3, 5, 3, 6.0),
    Sketcher.Constraint("Radius", 1, 1.451127),
    Sketcher.Constraint("DistanceY", 0, 2, 0, 1, 15.193989),
    Sketcher.Constraint("DistanceX", -1, 1, 1, 3, 4.722209),
    Sketcher.Constraint("DistanceY", 1, 3, -1, 1, 13.776271),
])
pocket2 = doc.addObject("PartDesign::Pocket", "Pocket001")
body.addObject(pocket2)
pocket2.Profile = sketch15
pocket2.Length = 10

doc.recompute()
